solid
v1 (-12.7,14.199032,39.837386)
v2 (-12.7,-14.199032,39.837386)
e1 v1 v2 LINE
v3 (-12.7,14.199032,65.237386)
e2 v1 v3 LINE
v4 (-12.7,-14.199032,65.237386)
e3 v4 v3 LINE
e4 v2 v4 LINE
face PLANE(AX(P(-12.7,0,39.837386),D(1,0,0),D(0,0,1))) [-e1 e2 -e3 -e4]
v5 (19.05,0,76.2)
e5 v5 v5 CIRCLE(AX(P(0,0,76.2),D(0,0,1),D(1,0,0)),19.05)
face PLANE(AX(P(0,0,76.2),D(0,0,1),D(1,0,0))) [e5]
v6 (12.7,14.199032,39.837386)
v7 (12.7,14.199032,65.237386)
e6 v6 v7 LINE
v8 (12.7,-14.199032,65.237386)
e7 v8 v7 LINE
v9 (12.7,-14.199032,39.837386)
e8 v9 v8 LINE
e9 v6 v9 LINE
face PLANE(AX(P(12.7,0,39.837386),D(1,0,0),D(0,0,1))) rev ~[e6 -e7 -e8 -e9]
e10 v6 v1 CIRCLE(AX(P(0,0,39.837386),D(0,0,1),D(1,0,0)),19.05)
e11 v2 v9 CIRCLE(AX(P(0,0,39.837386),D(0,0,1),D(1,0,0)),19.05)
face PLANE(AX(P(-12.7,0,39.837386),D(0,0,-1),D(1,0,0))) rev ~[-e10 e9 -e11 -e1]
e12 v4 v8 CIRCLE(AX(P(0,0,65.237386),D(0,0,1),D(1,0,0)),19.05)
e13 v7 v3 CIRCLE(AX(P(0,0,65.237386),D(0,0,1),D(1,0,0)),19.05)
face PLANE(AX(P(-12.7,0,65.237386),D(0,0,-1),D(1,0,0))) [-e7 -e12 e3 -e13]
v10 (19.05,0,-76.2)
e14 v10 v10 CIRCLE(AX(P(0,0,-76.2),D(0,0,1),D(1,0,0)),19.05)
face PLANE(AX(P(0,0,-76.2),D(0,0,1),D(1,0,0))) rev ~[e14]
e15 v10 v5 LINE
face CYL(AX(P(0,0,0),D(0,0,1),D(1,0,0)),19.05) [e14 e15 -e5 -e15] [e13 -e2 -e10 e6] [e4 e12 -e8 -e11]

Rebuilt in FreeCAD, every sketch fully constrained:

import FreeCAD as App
import Part
import Sketcher
from FreeCAD import Vector
Q = App.Units.Quantity

doc = App.newDocument("Part")
body = doc.addObject("PartDesign::Body", "Body")

# Sketch on XY plane
sketch1 = doc.addObject("Sketcher::SketchObject", "Sketch")
body.addObject(sketch1)
sketch1.AttachmentSupport = (doc.XY_Plane, [""])
sketch1.MapMode = "FlatFace"
sketch1.addGeometry(Part.Circle(Vector(0, 0, 0), Vector(0, 0, 1), 19), False)
sketch1.addConstraint([
    Sketcher.Constraint("Coincident", 0, 3, -1, 1),
    Sketcher.Constraint("Diameter", 0, Q("1.5 in")),
])
pad1 = doc.addObject("PartDesign::Pad", "Pad")
body.addObject(pad1)
pad1.Profile = sketch1
pad1.Length = Q("6 in")
pad1.Midplane = True

# Sketch on XZ plane
sketch2 = doc.addObject("Sketcher::SketchObject", "Sketch001")
body.addObject(sketch2)
sketch2.AttachmentSupport = (doc.XZ_Plane, [""])
sketch2.MapMode = "FlatFace"
sketch2.addGeometry([
    Part.LineSegment(Vector(-13, 65, 0), Vector(-13, 40, 0)),
    Part.LineSegment(Vector(-13, 40, 0), Vector(13, 40, 0)),
    Part.LineSegment(Vector(13, 40, 0), Vector(13, 65, 0)),
    Part.LineSegment(Vector(13, 65, 0), Vector(-13, 65, 0)),
], False)
sketch2.addConstraint([
    Sketcher.Constraint("Coincident", 0, 2, 1, 1),
    Sketcher.Constraint("Coincident", 1, 2, 2, 1),
    Sketcher.Constraint("Coincident", 2, 2, 3, 1),
    Sketcher.Constraint("Coincident", 3, 2, 0, 1),
    Sketcher.Constraint("Vertical", 0),
    Sketcher.Constraint("Horizontal", 1),
    Sketcher.Constraint("Vertical", 2),
    Sketcher.Constraint("Horizontal", 3),
    Sketcher.Constraint("Equal", 3, 0),
    Sketcher.Constraint("DistanceX", 1, 1, 1, 2, Q("1 in")),
    Sketcher.Constraint("DistanceX", 0, 2, -1, 1, Q("0.5 in")),
    Sketcher.Constraint("DistanceY", -1, 1, 0, 2, 39.837386),
])
pocket1 = doc.addObject("PartDesign::Pocket", "Pocket")
body.addObject(pocket1)
pocket1.Profile = sketch2
pocket1.Length = Q("2 in")
pocket1.Midplane = True

doc.recompute()
